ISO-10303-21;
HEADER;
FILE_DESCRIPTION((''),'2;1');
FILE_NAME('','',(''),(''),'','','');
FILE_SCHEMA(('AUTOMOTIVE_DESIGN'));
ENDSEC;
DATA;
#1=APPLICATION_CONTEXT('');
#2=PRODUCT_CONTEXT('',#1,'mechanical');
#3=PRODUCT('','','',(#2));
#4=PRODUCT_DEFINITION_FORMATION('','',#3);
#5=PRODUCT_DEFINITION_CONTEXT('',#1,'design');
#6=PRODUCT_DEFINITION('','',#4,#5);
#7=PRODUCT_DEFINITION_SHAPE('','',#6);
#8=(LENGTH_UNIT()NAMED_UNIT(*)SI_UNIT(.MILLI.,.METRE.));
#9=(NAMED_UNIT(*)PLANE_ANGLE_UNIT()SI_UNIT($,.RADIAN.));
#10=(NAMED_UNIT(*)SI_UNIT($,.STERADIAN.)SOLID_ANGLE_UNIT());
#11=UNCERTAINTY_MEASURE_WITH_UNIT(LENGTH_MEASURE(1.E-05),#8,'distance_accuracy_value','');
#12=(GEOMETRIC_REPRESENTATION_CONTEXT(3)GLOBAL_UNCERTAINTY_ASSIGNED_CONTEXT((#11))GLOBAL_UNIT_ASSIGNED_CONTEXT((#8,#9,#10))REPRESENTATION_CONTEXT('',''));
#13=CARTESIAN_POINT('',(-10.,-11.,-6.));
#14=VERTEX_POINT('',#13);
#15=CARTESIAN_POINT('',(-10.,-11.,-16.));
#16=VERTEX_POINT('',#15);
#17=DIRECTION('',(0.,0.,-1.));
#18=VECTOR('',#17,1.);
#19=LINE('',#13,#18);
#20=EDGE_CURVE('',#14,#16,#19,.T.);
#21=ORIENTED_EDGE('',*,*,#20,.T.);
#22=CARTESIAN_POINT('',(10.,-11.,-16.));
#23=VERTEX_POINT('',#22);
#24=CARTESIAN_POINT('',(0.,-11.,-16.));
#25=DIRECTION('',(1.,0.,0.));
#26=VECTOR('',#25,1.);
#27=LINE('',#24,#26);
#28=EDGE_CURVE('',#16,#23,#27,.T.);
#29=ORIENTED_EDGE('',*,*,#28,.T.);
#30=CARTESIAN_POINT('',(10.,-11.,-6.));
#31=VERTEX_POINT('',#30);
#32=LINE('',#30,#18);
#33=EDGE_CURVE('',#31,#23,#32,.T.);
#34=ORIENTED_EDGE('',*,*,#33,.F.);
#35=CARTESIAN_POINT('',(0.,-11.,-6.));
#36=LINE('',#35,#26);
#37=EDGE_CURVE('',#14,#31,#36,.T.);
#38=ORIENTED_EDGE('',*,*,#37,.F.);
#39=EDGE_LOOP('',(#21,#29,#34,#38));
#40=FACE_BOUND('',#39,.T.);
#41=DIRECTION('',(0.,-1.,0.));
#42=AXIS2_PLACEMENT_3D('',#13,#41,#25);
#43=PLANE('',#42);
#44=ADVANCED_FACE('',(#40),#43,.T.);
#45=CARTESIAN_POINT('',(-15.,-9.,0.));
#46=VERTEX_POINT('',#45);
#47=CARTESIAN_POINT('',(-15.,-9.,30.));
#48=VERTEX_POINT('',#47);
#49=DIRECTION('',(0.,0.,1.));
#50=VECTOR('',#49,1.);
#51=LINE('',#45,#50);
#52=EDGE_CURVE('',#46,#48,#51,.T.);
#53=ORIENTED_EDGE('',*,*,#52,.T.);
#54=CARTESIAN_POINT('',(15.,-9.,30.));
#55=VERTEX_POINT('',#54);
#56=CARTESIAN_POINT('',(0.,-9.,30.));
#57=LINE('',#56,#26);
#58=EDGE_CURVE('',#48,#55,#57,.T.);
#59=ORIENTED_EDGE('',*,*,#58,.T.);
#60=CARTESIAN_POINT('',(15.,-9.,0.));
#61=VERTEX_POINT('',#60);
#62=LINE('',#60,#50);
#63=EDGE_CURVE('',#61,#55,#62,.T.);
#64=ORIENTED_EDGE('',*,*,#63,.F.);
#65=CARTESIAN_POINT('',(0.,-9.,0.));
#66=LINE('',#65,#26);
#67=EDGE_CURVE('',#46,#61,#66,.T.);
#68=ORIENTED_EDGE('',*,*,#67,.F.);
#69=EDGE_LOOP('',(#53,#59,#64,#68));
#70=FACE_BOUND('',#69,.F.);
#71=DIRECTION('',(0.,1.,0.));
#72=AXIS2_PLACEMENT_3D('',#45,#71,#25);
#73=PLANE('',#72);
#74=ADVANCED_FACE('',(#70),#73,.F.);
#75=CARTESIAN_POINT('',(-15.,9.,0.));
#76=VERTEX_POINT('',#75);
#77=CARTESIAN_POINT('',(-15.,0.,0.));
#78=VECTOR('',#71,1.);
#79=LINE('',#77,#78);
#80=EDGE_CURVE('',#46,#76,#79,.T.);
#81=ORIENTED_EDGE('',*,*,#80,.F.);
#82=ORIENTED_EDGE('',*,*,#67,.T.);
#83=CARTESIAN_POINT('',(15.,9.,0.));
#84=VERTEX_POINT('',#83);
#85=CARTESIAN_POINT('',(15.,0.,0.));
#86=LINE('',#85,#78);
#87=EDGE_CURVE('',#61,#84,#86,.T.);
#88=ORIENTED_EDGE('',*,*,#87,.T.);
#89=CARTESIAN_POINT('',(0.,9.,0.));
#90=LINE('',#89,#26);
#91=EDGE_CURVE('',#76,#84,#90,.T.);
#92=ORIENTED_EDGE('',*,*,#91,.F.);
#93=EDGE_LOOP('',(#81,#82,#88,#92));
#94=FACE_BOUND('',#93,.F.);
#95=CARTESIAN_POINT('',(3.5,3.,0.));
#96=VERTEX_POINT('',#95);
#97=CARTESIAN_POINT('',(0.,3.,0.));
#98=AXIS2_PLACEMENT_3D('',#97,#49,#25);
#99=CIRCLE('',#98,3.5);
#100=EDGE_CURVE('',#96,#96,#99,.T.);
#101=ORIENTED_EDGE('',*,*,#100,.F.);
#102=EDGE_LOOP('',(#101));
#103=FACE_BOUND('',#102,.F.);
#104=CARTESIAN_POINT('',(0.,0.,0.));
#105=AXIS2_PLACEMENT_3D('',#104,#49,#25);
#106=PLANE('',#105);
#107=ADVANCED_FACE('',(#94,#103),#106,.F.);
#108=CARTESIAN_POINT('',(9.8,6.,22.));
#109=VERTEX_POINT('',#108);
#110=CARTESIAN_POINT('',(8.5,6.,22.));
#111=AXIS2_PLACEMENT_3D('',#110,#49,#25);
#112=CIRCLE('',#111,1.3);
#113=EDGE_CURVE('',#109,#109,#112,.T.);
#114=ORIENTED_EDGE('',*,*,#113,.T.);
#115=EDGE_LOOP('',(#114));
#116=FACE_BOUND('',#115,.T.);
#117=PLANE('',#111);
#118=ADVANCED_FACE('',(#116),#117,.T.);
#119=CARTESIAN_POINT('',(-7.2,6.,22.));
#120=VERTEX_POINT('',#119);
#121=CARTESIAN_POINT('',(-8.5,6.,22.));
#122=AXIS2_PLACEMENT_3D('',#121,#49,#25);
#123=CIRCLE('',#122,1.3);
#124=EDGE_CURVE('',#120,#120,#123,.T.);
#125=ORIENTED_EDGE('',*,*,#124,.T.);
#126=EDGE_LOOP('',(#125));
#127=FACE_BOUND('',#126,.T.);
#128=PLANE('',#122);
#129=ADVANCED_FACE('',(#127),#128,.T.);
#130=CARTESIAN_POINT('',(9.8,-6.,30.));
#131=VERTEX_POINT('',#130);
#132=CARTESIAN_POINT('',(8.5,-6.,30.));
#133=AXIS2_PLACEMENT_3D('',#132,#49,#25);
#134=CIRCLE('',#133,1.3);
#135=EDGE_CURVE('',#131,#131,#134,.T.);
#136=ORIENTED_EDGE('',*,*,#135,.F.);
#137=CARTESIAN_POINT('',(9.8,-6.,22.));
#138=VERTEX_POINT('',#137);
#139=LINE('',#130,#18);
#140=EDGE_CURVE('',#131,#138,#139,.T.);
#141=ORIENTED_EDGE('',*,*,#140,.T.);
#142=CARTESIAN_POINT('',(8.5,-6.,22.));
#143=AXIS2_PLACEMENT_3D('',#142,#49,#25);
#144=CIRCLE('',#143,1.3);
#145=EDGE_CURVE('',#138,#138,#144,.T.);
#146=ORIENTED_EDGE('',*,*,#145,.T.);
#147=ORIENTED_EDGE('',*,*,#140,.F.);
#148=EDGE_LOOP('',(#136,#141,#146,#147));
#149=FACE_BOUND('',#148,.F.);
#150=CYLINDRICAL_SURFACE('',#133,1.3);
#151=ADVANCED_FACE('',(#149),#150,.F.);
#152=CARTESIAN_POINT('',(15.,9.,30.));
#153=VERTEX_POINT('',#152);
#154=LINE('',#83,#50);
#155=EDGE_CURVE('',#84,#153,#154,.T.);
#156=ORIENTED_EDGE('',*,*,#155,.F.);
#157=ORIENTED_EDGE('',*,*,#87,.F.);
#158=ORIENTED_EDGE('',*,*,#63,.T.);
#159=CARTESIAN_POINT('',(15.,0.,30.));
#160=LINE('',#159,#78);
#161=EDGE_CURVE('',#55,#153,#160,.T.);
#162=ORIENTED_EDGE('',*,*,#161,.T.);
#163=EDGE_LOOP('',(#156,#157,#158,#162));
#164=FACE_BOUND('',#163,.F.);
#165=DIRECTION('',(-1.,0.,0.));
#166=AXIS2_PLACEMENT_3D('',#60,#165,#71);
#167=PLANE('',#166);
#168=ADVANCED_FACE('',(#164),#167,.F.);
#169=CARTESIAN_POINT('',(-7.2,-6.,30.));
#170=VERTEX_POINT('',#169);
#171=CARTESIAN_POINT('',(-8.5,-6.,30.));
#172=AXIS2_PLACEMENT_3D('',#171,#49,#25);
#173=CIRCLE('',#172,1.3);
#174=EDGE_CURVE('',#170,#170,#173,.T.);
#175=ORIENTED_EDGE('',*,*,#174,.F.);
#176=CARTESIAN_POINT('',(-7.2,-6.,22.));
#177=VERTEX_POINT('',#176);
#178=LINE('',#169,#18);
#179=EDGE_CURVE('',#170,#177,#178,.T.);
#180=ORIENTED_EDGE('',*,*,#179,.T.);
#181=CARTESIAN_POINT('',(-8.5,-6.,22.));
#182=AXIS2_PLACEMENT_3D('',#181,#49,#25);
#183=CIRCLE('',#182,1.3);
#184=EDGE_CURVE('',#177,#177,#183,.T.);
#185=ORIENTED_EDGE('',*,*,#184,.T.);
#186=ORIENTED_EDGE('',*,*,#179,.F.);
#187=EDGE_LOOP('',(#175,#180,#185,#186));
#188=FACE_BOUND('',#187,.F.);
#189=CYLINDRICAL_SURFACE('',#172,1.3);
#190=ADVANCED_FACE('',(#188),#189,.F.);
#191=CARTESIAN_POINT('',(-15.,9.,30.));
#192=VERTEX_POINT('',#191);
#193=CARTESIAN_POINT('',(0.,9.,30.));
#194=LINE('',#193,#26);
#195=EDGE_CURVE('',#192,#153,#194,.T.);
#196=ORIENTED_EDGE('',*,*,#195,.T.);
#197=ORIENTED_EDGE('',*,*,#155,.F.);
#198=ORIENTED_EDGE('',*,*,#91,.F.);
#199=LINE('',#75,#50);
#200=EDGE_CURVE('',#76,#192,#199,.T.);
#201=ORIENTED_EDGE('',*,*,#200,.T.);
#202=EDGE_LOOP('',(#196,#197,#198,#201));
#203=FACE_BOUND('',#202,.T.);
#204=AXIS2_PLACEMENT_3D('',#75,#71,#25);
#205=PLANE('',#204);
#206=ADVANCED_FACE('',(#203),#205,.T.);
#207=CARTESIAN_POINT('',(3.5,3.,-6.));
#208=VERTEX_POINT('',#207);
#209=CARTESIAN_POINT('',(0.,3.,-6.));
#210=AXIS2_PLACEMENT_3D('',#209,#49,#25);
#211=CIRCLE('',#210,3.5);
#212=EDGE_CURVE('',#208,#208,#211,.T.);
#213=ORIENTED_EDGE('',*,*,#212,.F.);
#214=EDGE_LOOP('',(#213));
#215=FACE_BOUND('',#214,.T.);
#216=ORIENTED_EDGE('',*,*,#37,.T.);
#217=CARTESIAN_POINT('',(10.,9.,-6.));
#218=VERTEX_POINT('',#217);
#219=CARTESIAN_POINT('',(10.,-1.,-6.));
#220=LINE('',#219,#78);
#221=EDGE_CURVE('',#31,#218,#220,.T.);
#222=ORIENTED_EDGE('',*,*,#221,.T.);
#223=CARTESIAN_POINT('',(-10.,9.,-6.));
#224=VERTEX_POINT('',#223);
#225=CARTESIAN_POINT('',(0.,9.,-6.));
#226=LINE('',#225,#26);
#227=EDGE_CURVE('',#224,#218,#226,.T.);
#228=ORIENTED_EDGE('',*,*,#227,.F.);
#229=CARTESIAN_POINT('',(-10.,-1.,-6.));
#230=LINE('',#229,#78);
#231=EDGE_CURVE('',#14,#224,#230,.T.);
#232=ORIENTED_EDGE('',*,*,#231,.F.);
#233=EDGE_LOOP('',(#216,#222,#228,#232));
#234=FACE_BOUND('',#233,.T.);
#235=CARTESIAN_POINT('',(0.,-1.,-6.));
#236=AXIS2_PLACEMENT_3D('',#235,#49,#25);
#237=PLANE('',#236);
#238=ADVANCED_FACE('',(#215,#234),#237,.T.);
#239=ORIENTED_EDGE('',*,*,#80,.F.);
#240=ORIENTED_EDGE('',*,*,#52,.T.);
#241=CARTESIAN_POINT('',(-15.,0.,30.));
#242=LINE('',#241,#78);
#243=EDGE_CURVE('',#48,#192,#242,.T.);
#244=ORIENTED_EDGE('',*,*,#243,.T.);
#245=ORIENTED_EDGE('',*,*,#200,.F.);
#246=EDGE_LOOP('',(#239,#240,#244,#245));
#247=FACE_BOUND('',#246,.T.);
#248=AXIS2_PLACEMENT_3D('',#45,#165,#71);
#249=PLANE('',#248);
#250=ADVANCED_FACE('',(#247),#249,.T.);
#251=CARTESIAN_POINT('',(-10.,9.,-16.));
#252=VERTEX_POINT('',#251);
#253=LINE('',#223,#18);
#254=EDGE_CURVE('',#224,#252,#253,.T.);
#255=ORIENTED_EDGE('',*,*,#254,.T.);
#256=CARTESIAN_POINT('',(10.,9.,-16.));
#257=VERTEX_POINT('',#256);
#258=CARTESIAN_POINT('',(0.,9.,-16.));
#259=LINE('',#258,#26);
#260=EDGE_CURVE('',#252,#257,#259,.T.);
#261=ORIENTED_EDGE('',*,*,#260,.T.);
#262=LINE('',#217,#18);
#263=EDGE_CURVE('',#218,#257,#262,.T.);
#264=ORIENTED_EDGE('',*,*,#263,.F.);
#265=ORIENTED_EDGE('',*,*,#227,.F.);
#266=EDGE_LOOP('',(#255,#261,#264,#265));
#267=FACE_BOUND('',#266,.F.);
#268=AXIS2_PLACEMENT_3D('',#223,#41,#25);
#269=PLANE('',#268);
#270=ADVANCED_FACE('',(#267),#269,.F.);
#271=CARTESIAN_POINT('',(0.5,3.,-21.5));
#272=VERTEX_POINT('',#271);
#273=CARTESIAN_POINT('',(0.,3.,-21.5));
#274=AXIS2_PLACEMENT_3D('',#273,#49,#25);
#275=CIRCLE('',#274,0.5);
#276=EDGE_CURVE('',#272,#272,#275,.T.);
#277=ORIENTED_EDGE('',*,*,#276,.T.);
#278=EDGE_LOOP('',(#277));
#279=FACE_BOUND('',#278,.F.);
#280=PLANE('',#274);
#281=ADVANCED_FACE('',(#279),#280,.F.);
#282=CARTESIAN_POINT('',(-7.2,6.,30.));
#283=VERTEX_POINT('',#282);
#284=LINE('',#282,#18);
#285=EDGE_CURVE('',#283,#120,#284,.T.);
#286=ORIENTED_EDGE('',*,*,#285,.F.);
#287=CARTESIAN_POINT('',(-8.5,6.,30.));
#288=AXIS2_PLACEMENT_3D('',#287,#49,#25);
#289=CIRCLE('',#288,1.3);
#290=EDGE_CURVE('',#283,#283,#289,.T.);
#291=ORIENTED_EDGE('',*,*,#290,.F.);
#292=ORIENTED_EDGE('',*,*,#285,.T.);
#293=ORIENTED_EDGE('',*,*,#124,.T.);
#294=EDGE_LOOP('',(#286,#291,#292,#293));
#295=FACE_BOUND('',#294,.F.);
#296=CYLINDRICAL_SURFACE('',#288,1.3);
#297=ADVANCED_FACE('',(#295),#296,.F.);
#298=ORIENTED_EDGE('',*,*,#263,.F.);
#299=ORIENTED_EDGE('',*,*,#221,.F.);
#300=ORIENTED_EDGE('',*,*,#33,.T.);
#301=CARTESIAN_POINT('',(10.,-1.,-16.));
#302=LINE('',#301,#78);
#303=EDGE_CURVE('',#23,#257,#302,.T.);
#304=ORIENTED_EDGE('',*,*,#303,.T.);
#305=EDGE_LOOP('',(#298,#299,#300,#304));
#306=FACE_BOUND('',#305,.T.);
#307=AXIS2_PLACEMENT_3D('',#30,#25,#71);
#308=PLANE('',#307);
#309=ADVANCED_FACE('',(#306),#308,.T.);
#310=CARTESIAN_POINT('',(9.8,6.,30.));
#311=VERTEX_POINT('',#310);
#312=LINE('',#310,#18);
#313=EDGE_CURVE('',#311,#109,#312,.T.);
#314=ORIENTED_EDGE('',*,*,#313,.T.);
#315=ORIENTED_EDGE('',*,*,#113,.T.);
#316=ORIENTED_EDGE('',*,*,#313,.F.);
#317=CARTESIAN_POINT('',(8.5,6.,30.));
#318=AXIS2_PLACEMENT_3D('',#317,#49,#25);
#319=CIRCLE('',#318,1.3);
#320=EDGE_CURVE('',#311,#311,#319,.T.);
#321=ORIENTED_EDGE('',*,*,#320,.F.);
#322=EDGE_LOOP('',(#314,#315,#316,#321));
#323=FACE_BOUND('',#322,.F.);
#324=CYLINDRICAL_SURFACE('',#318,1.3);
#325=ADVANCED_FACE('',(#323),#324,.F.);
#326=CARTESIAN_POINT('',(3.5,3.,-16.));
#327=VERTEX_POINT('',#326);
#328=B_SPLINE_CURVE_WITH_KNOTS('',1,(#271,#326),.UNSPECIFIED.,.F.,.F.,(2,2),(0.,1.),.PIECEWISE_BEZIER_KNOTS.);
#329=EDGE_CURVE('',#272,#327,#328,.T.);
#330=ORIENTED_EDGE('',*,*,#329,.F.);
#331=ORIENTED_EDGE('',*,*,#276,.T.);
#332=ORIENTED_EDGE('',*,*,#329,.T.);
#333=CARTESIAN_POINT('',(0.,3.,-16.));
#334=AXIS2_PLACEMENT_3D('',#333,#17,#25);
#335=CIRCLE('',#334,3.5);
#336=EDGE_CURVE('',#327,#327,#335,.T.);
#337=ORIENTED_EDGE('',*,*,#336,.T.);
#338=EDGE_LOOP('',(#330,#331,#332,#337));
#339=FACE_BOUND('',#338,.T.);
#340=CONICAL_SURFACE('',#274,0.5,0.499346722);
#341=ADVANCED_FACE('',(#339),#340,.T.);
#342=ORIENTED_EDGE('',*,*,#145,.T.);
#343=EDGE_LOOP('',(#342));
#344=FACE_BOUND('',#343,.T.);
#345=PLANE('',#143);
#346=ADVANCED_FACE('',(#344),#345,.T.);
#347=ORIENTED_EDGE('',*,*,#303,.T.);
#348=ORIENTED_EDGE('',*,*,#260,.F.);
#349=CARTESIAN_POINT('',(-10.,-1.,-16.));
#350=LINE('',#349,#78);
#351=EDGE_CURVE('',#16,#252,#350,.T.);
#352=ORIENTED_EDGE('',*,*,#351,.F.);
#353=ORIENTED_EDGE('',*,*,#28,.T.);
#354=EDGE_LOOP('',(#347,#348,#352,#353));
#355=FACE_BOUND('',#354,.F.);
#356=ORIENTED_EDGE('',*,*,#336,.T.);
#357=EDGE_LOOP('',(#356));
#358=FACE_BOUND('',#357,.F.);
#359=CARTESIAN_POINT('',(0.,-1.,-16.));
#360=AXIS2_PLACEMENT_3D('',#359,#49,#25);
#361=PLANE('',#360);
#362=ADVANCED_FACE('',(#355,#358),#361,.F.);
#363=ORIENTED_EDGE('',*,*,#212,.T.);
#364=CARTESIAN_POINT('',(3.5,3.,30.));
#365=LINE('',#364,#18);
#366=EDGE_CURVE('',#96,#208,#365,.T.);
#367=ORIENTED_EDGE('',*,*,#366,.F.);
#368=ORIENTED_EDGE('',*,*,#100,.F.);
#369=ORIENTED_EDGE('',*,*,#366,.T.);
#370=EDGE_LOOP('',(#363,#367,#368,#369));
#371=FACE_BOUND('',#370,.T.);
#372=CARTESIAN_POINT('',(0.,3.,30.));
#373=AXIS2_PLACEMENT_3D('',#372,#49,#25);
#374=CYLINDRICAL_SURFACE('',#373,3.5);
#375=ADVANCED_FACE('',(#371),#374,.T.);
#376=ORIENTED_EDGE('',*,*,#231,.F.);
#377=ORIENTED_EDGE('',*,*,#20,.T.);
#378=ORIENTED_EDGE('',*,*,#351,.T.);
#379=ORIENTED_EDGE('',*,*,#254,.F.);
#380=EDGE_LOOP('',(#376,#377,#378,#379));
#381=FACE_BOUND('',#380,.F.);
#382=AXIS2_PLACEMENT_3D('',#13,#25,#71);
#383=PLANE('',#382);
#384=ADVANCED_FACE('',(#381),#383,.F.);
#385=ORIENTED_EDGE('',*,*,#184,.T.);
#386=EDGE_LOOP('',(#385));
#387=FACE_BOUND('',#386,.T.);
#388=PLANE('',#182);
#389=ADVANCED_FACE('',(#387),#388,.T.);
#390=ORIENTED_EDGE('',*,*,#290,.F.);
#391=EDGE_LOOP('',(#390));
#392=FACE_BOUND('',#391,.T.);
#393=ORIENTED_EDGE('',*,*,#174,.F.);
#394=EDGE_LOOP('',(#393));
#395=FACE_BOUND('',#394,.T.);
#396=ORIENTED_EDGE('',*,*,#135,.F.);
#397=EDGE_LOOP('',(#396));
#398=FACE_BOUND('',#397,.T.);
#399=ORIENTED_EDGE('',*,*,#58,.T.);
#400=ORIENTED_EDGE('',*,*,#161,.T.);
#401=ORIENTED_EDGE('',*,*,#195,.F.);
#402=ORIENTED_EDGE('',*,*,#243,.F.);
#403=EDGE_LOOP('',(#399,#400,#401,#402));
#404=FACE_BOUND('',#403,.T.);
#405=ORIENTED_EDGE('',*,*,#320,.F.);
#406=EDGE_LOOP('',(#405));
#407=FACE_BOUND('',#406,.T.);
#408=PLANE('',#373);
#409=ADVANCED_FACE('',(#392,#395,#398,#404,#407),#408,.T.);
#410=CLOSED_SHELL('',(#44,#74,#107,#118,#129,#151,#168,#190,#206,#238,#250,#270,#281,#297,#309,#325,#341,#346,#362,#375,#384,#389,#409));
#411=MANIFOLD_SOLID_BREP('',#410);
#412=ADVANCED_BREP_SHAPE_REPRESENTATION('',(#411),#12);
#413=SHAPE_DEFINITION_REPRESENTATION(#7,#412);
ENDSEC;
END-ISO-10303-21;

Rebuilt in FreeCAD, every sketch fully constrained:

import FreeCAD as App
import Part
import Sketcher
Q = App.Units.Quantity


def add_polygon(sketch, points):
    """Adds a closed chain of lines whose ends are joined by coincident constraints."""
    first, n = sketch.GeometryCount, len(points)
    for a, b in zip(points, points[1:] + points[:1]):
        sketch.addGeometry(Part.LineSegment(App.Vector(*a, 0), App.Vector(*b, 0)), False)
    for i in range(n):
        sketch.addConstraint(Sketcher.Constraint("Coincident", first + i, 2, first + (i + 1) % n, 1))

doc = App.newDocument("Part")
body = doc.addObject("PartDesign::Body", "Body")

sketch1 = doc.addObject("Sketcher::SketchObject", "Sketch")
body.addObject(sketch1)
sketch1.AttachmentSupport = (doc.XY_Plane, [""])
sketch1.MapMode = "FlatFace"
add_polygon(sketch1, [(-15, 9), (-15, -9), (15, -9), (15, 9)])
sketch1.addConstraint(Sketcher.Constraint("Vertical", 0))
sketch1.addConstraint(Sketcher.Constraint("Horizontal", 1))
sketch1.addConstraint(Sketcher.Constraint("Vertical", 2))
sketch1.addConstraint(Sketcher.Constraint("Horizontal", 3))
sketch1.addConstraint(Sketcher.Constraint("Symmetric", 0, 2, 2, 2, -1, 1))
sketch1.addConstraint(Sketcher.Constraint("DistanceX", 1, 1, 1, 2, Q("30 mm")))
sketch1.addConstraint(Sketcher.Constraint("DistanceY", 0, 2, 0, 1, Q("18 mm")))
pad1 = doc.addObject("PartDesign::Pad", "Pad")
body.addObject(pad1)
pad1.Profile = sketch1
pad1.Length = 30
body2 = doc.addObject("PartDesign::Body", "Body001")

sketch2 = doc.addObject("Sketcher::SketchObject", "Sketch001")
body2.addObject(sketch2)
sketch2.AttachmentSupport = (doc.getObject("XY_Plane001"), [""])
sketch2.MapMode = "FlatFace"
sketch2.AttachmentOffset = App.Placement(App.Vector(0, 0, -6), App.Rotation())
add_polygon(sketch2, [(-10, 9), (-10, -11), (10, -11), (10, 9)])
sketch2.addConstraint(Sketcher.Constraint("Vertical", 0))
sketch2.addConstraint(Sketcher.Constraint("Horizontal", 1))
sketch2.addConstraint(Sketcher.Constraint("Vertical", 2))
sketch2.addConstraint(Sketcher.Constraint("Horizontal", 3))
sketch2.addConstraint(Sketcher.Constraint("Equal", 3, 0))
sketch2.addConstraint(Sketcher.Constraint("DistanceX", 1, 1, 1, 2, Q("20 mm")))
sketch2.addConstraint(Sketcher.Constraint("DistanceX", 0, 2, -1, 1, Q("10 mm")))
sketch2.addConstraint(Sketcher.Constraint("DistanceY", 0, 2, -1, 1, Q("11 mm")))
pad2 = doc.addObject("PartDesign::Pad", "Pad001")
body2.addObject(pad2)
pad2.Profile = sketch2
pad2.Length = 10
pad2.Reversed = True
body.AllowCompound = True
doc.recompute()

boolean = doc.addObject("PartDesign::Boolean", "Boolean")
body.addObject(boolean)
boolean.Type = "Fuse"
boolean.addObjects([body2])

sketch3 = doc.addObject("Sketcher::SketchObject", "Sketch002")
body.addObject(sketch3)
sketch3.AttachmentSupport = (doc.XY_Plane, [""])
sketch3.MapMode = "FlatFace"
sketch3.AttachmentOffset = App.Placement(App.Vector(0, 0, 30), App.Rotation())
sketch3.addGeometry(Part.Circle(App.Vector(0, 3, 0), App.Vector(0, 0, 1), 3.5), False)
sketch3.addConstraint(Sketcher.Constraint("PointOnObject", 0, 3, -2))
sketch3.addConstraint(Sketcher.Constraint("Diameter", 0, Q("7 mm")))
sketch3.addConstraint(Sketcher.Constraint("DistanceY", -1, 1, 0, 3, Q("3 mm")))
pad3 = doc.addObject("PartDesign::Pad", "Pad002")
body.addObject(pad3)
pad3.Profile = sketch3
pad3.Type = "UpToLast"
pad3.Reversed = True

sketch4 = doc.addObject("Sketcher::SketchObject", "Sketch003")
body.addObject(sketch4)
sketch4.AttachmentSupport = (doc.XY_Plane, [""])
sketch4.MapMode = "FlatFace"
sketch4.AttachmentOffset = App.Placement(App.Vector(0, 0, -21.5), App.Rotation())
sketch4.addGeometry(Part.Circle(App.Vector(0, 3, 0), App.Vector(0, 0, 1), 0.5), False)
sketch4.addConstraint(Sketcher.Constraint("PointOnObject", 0, 3, -2))
sketch4.addConstraint(Sketcher.Constraint("Diameter", 0, Q("1 mm")))
sketch4.addConstraint(Sketcher.Constraint("DistanceY", -1, 1, 0, 3, Q("3 mm")))

sketch5 = doc.addObject("Sketcher::SketchObject", "Sketch004")
body.addObject(sketch5)
sketch5.AttachmentSupport = (doc.XY_Plane, [""])
sketch5.MapMode = "FlatFace"
sketch5.AttachmentOffset = App.Placement(App.Vector(0, 0, -16), App.Rotation())
sketch5.addGeometry(Part.Circle(App.Vector(0, 3, 0), App.Vector(0, 0, 1), 3.5), False)
sketch5.addConstraint(Sketcher.Constraint("PointOnObject", 0, 3, -2))
sketch5.addConstraint(Sketcher.Constraint("Diameter", 0, Q("7 mm")))
sketch5.addConstraint(Sketcher.Constraint("DistanceY", -1, 1, 0, 3, Q("3 mm")))

additiveloft = doc.addObject("PartDesign::AdditiveLoft", "AdditiveLoft")
body.addObject(additiveloft)
additiveloft.Profile = sketch4
additiveloft.Sections = [sketch5]

sketch6 = doc.addObject("Sketcher::SketchObject", "Sketch005")
body.addObject(sketch6)
sketch6.AttachmentSupport = (doc.XY_Plane, [""])
sketch6.MapMode = "FlatFace"
sketch6.AttachmentOffset = App.Placement(App.Vector(0, 0, 30), App.Rotation())
sketch6.addGeometry(Part.Circle(App.Vector(-8.5, 6, 0), App.Vector(0, 0, 1), 1.3), False)
sketch6.addGeometry(Part.Circle(App.Vector(8.5, 6, 0), App.Vector(0, 0, 1), 1.3), False)
sketch6.addGeometry(Part.Circle(App.Vector(8.5, -6, 0), App.Vector(0, 0, 1), 1.3), False)
sketch6.addGeometry(Part.Circle(App.Vector(-8.5, -6, 0), App.Vector(0, 0, 1), 1.3), False)
sketch6.addConstraint(Sketcher.Constraint("Equal", 0, 1))
sketch6.addConstraint(Sketcher.Constraint("Equal", 1, 2))
sketch6.addConstraint(Sketcher.Constraint("Equal", 2, 3))
sketch6.addConstraint(Sketcher.Constraint("Symmetric", 0, 3, 2, 3, -1, 1))
sketch6.addConstraint(Sketcher.Constraint("Symmetric", 1, 3, 3, 3, -1, 1))
sketch6.addConstraint(Sketcher.Constraint("Symmetric", 0, 3, 1, 3, -2))
sketch6.addConstraint(Sketcher.Constraint("Diameter", 0, Q("2.6 mm")))
sketch6.addConstraint(Sketcher.Constraint("DistanceY", -1, 1, 0, 3, Q("6 mm")))
sketch6.addConstraint(Sketcher.Constraint("DistanceX", 0, 3, 1, 3, Q("17 mm")))
pocket1 = doc.addObject("PartDesign::Pocket", "Pocket")
body.addObject(pocket1)
pocket1.Profile = sketch6
pocket1.Length = 8

doc.recompute()
